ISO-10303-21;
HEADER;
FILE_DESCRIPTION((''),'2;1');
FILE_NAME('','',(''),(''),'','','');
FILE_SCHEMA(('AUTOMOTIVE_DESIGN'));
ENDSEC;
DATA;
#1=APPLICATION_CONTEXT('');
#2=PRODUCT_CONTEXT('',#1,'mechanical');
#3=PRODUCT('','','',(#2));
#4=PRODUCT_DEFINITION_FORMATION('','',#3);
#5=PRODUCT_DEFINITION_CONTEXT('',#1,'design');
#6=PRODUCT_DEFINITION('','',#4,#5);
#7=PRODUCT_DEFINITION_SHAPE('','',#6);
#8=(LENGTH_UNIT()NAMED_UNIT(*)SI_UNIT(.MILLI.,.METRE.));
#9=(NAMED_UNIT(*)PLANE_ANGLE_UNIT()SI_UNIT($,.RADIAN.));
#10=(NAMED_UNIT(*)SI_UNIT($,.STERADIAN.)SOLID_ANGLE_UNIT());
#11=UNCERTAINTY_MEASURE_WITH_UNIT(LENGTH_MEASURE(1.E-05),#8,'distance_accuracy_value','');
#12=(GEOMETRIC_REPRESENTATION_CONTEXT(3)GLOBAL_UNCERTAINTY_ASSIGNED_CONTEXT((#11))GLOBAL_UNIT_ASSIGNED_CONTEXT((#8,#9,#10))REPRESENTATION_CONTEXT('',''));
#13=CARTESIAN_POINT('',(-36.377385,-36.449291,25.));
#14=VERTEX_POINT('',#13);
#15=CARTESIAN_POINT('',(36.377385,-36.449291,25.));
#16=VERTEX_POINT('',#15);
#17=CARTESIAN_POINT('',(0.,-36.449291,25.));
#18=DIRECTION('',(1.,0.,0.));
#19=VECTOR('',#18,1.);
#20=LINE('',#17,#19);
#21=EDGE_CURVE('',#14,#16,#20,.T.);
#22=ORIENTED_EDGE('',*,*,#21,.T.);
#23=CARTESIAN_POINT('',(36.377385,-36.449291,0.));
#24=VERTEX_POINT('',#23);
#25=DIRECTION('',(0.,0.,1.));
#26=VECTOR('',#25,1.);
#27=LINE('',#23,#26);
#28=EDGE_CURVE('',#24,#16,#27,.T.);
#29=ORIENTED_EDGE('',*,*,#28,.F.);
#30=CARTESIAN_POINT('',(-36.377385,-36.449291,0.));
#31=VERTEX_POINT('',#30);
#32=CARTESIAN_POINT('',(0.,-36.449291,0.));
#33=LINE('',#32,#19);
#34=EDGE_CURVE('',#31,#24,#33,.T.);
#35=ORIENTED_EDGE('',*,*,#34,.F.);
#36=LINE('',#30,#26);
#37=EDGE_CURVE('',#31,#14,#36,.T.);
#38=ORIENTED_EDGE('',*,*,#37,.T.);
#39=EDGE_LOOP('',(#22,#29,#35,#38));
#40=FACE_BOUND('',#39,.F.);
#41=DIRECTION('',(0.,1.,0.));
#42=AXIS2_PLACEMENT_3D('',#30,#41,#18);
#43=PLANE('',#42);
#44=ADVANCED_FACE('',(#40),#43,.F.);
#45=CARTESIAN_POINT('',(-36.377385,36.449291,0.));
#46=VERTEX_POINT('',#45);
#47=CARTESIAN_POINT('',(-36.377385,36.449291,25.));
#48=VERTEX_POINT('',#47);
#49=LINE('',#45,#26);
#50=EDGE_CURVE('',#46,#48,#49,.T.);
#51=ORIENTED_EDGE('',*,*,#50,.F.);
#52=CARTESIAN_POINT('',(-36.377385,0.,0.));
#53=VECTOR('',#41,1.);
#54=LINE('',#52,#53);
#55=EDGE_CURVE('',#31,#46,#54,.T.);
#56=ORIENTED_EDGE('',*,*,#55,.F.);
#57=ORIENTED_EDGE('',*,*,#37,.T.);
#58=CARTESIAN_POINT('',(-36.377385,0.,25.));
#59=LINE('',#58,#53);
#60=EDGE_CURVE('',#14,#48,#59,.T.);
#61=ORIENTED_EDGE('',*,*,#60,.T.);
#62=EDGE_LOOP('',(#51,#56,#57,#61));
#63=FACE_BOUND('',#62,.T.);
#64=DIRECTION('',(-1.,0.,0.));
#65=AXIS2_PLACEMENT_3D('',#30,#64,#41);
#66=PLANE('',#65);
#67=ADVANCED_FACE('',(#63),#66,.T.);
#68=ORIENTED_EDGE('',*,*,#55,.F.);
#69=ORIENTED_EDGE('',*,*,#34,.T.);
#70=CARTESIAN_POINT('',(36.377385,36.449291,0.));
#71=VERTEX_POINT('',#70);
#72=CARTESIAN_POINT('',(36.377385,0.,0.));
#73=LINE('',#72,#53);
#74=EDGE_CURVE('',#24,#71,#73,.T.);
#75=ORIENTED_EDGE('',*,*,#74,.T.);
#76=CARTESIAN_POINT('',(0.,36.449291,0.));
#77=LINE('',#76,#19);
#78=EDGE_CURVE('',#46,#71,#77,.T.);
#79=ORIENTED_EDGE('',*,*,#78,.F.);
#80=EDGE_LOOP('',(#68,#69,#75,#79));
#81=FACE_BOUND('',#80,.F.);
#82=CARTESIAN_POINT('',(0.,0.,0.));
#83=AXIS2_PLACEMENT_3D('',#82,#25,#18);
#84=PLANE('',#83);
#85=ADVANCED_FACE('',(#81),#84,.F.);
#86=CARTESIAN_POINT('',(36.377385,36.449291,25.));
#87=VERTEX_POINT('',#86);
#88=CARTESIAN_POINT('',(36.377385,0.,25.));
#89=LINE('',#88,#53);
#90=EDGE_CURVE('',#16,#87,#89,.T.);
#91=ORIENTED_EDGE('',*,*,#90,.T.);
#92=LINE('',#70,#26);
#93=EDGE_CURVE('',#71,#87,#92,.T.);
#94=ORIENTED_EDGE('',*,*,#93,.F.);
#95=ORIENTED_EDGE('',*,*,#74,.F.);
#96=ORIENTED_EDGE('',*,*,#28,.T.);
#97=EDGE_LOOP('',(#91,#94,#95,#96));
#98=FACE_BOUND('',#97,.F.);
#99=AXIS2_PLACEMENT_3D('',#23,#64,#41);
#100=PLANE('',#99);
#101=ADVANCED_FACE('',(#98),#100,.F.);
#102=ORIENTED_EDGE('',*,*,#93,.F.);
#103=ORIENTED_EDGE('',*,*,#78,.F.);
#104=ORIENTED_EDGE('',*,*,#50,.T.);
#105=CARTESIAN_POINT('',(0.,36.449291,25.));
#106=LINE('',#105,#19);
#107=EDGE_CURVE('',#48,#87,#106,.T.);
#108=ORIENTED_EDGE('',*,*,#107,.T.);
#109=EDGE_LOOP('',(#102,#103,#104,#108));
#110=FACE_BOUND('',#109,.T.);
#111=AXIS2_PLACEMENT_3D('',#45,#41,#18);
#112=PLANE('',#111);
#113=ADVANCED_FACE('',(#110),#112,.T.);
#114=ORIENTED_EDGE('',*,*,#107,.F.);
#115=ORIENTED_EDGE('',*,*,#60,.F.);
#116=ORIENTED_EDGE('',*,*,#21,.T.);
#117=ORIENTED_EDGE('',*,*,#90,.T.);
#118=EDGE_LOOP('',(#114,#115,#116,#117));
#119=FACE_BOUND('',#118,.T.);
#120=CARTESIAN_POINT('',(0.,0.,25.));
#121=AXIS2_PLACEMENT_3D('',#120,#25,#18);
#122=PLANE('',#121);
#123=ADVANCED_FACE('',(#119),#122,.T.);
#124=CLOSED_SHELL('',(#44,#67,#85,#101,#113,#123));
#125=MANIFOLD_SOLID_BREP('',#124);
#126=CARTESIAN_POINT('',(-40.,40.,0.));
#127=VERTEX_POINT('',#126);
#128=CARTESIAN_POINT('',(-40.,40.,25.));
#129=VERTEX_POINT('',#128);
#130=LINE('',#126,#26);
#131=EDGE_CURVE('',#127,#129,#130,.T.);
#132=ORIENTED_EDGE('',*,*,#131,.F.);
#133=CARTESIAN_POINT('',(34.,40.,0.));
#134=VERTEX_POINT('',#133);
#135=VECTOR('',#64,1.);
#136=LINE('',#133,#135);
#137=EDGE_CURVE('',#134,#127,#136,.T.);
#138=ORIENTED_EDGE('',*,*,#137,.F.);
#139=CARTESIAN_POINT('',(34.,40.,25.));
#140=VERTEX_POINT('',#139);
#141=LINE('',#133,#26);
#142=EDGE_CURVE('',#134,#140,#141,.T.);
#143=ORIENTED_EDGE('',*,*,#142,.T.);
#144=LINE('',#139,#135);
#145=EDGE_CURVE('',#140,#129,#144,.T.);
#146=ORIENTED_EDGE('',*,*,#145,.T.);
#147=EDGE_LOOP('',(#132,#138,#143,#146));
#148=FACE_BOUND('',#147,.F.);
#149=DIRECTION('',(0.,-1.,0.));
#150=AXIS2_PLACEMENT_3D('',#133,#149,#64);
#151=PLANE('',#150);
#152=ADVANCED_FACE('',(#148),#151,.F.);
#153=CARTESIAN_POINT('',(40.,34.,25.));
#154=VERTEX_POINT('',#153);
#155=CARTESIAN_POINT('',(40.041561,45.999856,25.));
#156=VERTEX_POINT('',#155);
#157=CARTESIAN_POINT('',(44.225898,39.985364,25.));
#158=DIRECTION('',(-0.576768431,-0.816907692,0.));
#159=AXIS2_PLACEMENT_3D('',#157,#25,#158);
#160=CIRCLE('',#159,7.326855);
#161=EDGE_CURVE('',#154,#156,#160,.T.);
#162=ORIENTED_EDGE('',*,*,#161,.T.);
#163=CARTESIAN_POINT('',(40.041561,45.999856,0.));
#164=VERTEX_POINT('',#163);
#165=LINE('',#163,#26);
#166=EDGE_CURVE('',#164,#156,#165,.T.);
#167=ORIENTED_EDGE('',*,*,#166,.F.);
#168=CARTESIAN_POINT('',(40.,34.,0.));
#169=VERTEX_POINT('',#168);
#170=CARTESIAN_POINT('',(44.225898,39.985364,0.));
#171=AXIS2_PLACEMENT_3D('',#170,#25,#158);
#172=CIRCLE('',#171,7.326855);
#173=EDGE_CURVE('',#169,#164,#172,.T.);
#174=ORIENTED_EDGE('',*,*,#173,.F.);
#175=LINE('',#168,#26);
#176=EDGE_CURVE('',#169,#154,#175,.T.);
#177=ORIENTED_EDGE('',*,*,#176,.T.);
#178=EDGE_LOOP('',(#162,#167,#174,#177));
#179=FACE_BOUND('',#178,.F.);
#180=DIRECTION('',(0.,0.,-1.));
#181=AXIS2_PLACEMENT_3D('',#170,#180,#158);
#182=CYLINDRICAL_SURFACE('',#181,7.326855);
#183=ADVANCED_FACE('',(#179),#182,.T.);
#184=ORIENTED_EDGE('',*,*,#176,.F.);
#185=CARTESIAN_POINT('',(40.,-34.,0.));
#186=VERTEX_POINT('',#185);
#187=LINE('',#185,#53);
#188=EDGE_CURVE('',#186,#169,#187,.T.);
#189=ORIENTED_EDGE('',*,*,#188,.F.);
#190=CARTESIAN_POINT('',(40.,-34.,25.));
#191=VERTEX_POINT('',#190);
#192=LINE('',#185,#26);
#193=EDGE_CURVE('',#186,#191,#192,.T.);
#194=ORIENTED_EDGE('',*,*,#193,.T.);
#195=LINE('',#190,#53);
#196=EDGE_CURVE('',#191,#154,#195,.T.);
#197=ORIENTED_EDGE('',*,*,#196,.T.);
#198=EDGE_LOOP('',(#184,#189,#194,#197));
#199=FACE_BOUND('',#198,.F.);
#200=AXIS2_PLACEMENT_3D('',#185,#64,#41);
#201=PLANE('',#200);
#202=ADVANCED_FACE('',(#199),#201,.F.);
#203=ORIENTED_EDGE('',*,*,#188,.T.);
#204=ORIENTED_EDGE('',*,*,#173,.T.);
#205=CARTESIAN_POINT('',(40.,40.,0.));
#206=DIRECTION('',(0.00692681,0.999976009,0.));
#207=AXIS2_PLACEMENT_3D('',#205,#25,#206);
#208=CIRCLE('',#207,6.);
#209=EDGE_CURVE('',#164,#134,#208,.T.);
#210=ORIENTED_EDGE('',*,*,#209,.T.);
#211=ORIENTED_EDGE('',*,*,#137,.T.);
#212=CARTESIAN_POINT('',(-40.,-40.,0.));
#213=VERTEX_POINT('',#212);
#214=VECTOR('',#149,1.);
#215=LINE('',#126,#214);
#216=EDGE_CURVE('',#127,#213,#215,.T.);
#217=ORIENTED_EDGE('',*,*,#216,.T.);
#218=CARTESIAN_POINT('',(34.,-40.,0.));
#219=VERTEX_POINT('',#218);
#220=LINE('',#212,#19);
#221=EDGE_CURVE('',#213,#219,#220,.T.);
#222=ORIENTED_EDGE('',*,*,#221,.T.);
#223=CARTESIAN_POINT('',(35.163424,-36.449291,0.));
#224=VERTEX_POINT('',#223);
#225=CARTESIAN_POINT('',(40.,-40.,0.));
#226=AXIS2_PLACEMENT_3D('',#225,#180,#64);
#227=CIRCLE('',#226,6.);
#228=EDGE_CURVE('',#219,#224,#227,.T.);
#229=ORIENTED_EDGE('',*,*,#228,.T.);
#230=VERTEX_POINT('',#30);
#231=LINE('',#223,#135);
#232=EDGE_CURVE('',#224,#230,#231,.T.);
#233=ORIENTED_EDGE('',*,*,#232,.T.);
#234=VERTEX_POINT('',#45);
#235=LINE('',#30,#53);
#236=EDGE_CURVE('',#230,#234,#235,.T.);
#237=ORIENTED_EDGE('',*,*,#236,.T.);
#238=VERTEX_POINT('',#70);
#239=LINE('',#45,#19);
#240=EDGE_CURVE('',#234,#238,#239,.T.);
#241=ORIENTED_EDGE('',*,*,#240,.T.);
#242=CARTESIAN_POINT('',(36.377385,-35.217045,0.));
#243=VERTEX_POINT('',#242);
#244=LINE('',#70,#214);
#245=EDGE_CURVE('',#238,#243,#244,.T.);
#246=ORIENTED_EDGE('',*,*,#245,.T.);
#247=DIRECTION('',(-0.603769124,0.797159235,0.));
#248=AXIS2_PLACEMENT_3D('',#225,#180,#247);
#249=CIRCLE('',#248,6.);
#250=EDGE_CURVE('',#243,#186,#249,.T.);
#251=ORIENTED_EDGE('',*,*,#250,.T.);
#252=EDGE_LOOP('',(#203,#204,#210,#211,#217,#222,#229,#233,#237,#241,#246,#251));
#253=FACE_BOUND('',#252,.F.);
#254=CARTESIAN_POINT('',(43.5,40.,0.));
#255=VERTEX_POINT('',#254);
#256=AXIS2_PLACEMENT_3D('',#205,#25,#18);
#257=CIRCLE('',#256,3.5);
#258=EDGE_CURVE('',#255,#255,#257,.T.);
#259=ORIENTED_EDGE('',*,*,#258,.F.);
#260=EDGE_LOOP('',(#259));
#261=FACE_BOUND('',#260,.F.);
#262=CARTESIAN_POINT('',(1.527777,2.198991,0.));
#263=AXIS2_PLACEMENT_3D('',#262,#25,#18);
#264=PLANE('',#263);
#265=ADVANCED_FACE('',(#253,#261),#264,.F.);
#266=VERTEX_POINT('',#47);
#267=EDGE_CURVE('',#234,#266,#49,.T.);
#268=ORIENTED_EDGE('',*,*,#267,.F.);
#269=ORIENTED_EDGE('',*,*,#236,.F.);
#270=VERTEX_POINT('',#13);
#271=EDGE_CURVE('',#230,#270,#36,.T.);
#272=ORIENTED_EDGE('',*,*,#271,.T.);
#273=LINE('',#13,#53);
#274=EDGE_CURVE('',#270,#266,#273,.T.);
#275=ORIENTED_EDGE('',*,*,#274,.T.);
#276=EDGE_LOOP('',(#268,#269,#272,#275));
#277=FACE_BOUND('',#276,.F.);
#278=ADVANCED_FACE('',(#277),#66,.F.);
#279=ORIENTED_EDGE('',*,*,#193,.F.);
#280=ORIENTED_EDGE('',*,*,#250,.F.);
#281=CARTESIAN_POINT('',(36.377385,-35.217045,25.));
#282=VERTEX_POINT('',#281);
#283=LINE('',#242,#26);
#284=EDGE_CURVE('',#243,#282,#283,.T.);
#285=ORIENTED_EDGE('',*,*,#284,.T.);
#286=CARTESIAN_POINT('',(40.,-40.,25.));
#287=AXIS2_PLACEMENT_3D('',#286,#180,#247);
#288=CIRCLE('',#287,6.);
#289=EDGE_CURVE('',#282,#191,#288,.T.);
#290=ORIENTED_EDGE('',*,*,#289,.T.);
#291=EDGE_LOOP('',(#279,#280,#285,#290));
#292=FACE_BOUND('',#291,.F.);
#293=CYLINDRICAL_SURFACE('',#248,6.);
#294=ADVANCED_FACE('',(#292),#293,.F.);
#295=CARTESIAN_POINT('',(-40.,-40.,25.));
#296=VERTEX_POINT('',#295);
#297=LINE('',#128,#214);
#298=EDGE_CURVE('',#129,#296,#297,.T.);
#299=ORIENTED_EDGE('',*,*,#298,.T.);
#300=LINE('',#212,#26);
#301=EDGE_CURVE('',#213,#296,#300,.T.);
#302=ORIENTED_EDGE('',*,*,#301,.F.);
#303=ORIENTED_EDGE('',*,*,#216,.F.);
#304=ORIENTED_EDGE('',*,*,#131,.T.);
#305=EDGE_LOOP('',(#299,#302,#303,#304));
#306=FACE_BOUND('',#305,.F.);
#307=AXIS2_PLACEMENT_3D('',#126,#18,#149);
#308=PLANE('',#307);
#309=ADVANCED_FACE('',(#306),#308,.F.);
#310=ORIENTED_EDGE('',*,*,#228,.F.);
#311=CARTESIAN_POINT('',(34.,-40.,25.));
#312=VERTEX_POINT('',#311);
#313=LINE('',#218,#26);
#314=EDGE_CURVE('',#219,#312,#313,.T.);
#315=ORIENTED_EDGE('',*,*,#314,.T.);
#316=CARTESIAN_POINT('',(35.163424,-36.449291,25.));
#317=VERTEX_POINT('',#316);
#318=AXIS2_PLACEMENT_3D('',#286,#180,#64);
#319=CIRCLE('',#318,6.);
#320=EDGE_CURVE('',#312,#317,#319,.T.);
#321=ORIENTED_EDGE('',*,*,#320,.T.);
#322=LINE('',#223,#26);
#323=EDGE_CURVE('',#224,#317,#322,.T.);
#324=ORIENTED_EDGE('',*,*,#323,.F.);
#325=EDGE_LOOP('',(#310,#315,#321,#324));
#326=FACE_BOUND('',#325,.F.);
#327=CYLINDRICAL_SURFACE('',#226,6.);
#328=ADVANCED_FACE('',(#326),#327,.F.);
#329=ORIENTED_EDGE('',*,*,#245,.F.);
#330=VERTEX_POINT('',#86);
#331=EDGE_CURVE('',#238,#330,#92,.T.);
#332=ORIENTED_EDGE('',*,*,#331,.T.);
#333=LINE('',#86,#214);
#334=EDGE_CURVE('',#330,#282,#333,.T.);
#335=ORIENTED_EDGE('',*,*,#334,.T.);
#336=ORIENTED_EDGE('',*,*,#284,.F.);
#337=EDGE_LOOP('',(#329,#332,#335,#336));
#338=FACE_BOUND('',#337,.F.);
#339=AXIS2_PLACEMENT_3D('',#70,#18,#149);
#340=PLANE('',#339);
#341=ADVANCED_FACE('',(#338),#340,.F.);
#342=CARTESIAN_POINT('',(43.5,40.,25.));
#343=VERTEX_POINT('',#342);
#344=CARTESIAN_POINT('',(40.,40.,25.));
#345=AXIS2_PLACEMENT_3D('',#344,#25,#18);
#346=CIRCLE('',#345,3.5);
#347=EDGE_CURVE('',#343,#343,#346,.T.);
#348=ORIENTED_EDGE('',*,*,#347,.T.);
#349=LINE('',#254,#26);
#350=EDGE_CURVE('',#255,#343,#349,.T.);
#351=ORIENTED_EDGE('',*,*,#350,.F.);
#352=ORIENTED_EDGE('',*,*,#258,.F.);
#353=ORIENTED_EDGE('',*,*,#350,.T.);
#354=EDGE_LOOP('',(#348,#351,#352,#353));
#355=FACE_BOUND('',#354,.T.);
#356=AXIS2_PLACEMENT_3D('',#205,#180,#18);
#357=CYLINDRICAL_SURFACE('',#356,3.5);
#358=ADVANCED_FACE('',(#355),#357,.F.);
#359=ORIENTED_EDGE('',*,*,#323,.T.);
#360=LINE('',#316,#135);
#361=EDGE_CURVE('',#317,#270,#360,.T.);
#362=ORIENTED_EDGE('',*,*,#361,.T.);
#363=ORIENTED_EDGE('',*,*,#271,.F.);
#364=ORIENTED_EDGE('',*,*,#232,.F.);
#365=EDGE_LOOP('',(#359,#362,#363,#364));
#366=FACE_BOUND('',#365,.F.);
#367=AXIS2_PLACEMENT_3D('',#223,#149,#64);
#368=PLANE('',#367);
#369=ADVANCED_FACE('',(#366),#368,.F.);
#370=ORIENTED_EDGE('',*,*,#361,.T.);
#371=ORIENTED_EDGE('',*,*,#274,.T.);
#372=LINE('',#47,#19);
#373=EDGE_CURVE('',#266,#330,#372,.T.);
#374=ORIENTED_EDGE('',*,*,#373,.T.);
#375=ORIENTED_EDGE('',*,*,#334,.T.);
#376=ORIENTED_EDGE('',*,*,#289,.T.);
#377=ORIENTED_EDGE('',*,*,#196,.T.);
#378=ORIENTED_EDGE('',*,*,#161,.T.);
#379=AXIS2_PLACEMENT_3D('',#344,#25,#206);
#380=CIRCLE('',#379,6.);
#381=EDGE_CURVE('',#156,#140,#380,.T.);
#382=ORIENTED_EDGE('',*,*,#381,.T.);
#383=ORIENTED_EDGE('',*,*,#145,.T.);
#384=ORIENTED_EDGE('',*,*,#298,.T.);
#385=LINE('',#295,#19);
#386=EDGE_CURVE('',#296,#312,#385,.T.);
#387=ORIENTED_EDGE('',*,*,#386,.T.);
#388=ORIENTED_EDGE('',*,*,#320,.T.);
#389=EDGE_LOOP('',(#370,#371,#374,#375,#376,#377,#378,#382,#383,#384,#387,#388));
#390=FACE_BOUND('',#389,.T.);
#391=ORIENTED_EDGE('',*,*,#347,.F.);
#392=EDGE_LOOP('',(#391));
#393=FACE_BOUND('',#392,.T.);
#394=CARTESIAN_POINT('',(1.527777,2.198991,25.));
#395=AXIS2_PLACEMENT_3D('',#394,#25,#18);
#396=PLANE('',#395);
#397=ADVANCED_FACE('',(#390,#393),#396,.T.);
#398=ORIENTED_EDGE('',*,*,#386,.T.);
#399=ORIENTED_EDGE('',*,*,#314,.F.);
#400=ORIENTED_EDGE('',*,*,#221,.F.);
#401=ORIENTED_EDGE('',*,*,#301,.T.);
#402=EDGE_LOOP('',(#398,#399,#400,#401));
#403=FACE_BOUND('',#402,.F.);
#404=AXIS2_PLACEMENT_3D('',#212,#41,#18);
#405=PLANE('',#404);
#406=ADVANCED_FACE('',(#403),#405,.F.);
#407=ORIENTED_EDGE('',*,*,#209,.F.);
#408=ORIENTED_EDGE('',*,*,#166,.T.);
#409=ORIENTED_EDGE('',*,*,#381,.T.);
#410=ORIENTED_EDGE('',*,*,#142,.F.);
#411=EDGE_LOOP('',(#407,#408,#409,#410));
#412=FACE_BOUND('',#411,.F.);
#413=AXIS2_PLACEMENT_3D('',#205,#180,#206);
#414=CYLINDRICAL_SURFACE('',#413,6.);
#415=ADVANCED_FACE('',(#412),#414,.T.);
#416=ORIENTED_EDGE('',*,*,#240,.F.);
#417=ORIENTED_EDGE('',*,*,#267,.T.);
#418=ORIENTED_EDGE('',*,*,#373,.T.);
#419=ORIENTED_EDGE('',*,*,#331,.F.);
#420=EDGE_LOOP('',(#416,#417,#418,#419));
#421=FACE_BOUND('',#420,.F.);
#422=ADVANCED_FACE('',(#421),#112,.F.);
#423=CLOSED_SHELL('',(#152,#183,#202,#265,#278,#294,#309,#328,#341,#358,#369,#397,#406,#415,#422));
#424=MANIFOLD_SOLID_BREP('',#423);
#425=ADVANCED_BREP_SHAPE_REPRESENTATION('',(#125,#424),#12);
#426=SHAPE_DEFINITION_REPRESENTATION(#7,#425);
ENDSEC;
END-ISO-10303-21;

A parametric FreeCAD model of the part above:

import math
import FreeCAD as App
import Part
import Sketcher
Q = App.Units.Quantity


def add_polygon(sketch, points):
    """Adds a closed chain of lines whose ends are joined by coincident constraints."""
    first, n = sketch.GeometryCount, len(points)
    for a, b in zip(points, points[1:] + points[:1]):
        sketch.addGeometry(Part.LineSegment(App.Vector(*a, 0), App.Vector(*b, 0)), False)
    for i in range(n):
        sketch.addConstraint(Sketcher.Constraint("Coincident", first + i, 2, first + (i + 1) % n, 1))

doc = App.newDocument("Part")
body = doc.addObject("PartDesign::Body", "Body")

# Sketch on XY plane
sketch1 = doc.addObject("Sketcher::SketchObject", "Sketch")
body.addObject(sketch1)
sketch1.AttachmentSupport = (doc.XY_Plane, [""])
sketch1.MapMode = "FlatFace"
add_polygon(sketch1, [(-36, 36), (-36, -36), (36, -36), (36, 36)])  # lines 0-3
sketch1.addConstraint([
    Sketcher.Constraint("Vertical", 0),
    Sketcher.Constraint("Horizontal", 1),
    Sketcher.Constraint("Vertical", 2),
    Sketcher.Constraint("Horizontal", 3),
    Sketcher.Constraint("Symmetric", 0, 2, 2, 2, -1, 1),
    Sketcher.Constraint("DistanceX", 1, 1, 1, 2, Q("72.754771 mm")),
    Sketcher.Constraint("DistanceY", 0, 2, 0, 1, Q("72.898582 mm")),
])
pad1 = doc.addObject("PartDesign::Pad", "Pad")
body.addObject(pad1)
pad1.Profile = sketch1
pad1.Length = 25
body2 = doc.addObject("PartDesign::Body", "Body001")

# Sketch on XY plane
sketch2 = doc.addObject("Sketcher::SketchObject", "Sketch001")
body2.addObject(sketch2)
sketch2.AttachmentSupport = (doc.getObject("XY_Plane001"), [""])
sketch2.MapMode = "FlatFace"
sketch2.addGeometry([
    Part.LineSegment(App.Vector(-40, -40, 0), App.Vector(34, -40, 0)),  # 0
    Part.ArcOfCircle(Part.Circle(App.Vector(40, -40, 0), App.Vector(0, 0, 1), 6), math.radians(144), math.radians(180)),  # 1
    Part.LineSegment(App.Vector(35.2, -36.4, 0), App.Vector(-36.4, -36.4, 0)),  # 2
    Part.LineSegment(App.Vector(-36.4, -36.4, 0), App.Vector(-36.4, 36.4, 0)),  # 3
    Part.LineSegment(App.Vector(-36.4, 36.4, 0), App.Vector(36.4, 36.4, 0)),  # 4
    Part.LineSegment(App.Vector(36.4, 36.4, 0), App.Vector(36.4, -35.2, 0)),  # 5
    Part.ArcOfCircle(Part.Circle(App.Vector(40, -40, 0), App.Vector(0, 0, 1), 6), math.radians(90), math.radians(127)),  # 6
    Part.LineSegment(App.Vector(40, -34, 0), App.Vector(40, 34, 0)),  # 7
    Part.ArcOfCircle(Part.Circle(App.Vector(44.2, 40, 0), App.Vector(0, 0, 1), 7.3), math.radians(-125), math.radians(125)),  # 8
    Part.ArcOfCircle(Part.Circle(App.Vector(40, 40, 0), App.Vector(0, 0, 1), 6), math.radians(90), math.radians(180)),  # 9
    Part.LineSegment(App.Vector(34, 40, 0), App.Vector(-40, 40, 0)),  # 10
    Part.LineSegment(App.Vector(-40, 40, 0), App.Vector(-40, -40, 0)),  # 11
    Part.Circle(App.Vector(40, 40, 0), App.Vector(0, 0, 1), 3.5),  # 12
], False)
sketch2.addConstraint([
    Sketcher.Constraint("Coincident", 0, 2, 1, 2),
    Sketcher.Constraint("Coincident", 1, 1, 2, 1),
    Sketcher.Constraint("Coincident", 2, 2, 3, 1),
    Sketcher.Constraint("Coincident", 3, 2, 4, 1),
    Sketcher.Constraint("Coincident", 4, 2, 5, 1),
    Sketcher.Constraint("Coincident", 5, 2, 6, 2),
    Sketcher.Constraint("Coincident", 6, 1, 7, 1),
    Sketcher.Constraint("Coincident", 7, 2, 8, 1),
    Sketcher.Constraint("Coincident", 8, 2, 9, 1),
    Sketcher.Constraint("Coincident", 9, 2, 10, 1),
    Sketcher.Constraint("Coincident", 10, 2, 11, 1),
    Sketcher.Constraint("Coincident", 11, 2, 0, 1),
    Sketcher.Constraint("Horizontal", 0),
    Sketcher.Constraint("Horizontal", 2),
    Sketcher.Constraint("Vertical", 3),
    Sketcher.Constraint("Horizontal", 4),
    Sketcher.Constraint("Vertical", 5),
    Sketcher.Constraint("Vertical", 7),
    Sketcher.Constraint("Horizontal", 10),
    Sketcher.Constraint("Vertical", 11),
    Sketcher.Constraint("Coincident", 6, 3, 1, 3),
    Sketcher.Constraint("Coincident", 12, 3, 9, 3),
    Sketcher.Constraint("Equal", 1, 6),
    Sketcher.Constraint("Equal", 6, 9),
    Sketcher.Constraint("Symmetric", 2, 2, 4, 2, -1, 1),
    Sketcher.Constraint("Symmetric", 1, 3, 9, 3, -1),
    Sketcher.Constraint("Horizontal", 6, 3, 0, 2),
    Sketcher.Constraint("Horizontal", 12, 3, 9, 2),
    Sketcher.Constraint("Vertical", 12, 3, 6, 1),
    Sketcher.Constraint("Diameter", 12, Q("7 mm")),
    Sketcher.Constraint("Radius", 1, Q("6 mm")),
    Sketcher.Constraint("DistanceX", 0, 1, 0, 2, Q("74 mm")),
    Sketcher.Constraint("DistanceY", 7, 1, 7, 2, Q("68 mm")),
    Sketcher.Constraint("DistanceY", 11, 2, 11, 1, Q("80 mm")),
    Sketcher.Constraint("DistanceX", -1, 1, 1, 3, Q("40 mm")),
    Sketcher.Constraint("Radius", 8, Q("7.326855 mm")),
    Sketcher.Constraint("DistanceX", 2, 2, 2, 1, Q("71.54081 mm")),
    Sketcher.Constraint("DistanceX", 4, 1, 4, 2, Q("72.754771 mm")),
    Sketcher.Constraint("DistanceX", -1, 1, 8, 3, Q("44.225898 mm")),
])
pad2 = doc.addObject("PartDesign::Pad", "Pad001")
body2.addObject(pad2)
pad2.Profile = sketch2
pad2.Length = 25

doc.recompute()
